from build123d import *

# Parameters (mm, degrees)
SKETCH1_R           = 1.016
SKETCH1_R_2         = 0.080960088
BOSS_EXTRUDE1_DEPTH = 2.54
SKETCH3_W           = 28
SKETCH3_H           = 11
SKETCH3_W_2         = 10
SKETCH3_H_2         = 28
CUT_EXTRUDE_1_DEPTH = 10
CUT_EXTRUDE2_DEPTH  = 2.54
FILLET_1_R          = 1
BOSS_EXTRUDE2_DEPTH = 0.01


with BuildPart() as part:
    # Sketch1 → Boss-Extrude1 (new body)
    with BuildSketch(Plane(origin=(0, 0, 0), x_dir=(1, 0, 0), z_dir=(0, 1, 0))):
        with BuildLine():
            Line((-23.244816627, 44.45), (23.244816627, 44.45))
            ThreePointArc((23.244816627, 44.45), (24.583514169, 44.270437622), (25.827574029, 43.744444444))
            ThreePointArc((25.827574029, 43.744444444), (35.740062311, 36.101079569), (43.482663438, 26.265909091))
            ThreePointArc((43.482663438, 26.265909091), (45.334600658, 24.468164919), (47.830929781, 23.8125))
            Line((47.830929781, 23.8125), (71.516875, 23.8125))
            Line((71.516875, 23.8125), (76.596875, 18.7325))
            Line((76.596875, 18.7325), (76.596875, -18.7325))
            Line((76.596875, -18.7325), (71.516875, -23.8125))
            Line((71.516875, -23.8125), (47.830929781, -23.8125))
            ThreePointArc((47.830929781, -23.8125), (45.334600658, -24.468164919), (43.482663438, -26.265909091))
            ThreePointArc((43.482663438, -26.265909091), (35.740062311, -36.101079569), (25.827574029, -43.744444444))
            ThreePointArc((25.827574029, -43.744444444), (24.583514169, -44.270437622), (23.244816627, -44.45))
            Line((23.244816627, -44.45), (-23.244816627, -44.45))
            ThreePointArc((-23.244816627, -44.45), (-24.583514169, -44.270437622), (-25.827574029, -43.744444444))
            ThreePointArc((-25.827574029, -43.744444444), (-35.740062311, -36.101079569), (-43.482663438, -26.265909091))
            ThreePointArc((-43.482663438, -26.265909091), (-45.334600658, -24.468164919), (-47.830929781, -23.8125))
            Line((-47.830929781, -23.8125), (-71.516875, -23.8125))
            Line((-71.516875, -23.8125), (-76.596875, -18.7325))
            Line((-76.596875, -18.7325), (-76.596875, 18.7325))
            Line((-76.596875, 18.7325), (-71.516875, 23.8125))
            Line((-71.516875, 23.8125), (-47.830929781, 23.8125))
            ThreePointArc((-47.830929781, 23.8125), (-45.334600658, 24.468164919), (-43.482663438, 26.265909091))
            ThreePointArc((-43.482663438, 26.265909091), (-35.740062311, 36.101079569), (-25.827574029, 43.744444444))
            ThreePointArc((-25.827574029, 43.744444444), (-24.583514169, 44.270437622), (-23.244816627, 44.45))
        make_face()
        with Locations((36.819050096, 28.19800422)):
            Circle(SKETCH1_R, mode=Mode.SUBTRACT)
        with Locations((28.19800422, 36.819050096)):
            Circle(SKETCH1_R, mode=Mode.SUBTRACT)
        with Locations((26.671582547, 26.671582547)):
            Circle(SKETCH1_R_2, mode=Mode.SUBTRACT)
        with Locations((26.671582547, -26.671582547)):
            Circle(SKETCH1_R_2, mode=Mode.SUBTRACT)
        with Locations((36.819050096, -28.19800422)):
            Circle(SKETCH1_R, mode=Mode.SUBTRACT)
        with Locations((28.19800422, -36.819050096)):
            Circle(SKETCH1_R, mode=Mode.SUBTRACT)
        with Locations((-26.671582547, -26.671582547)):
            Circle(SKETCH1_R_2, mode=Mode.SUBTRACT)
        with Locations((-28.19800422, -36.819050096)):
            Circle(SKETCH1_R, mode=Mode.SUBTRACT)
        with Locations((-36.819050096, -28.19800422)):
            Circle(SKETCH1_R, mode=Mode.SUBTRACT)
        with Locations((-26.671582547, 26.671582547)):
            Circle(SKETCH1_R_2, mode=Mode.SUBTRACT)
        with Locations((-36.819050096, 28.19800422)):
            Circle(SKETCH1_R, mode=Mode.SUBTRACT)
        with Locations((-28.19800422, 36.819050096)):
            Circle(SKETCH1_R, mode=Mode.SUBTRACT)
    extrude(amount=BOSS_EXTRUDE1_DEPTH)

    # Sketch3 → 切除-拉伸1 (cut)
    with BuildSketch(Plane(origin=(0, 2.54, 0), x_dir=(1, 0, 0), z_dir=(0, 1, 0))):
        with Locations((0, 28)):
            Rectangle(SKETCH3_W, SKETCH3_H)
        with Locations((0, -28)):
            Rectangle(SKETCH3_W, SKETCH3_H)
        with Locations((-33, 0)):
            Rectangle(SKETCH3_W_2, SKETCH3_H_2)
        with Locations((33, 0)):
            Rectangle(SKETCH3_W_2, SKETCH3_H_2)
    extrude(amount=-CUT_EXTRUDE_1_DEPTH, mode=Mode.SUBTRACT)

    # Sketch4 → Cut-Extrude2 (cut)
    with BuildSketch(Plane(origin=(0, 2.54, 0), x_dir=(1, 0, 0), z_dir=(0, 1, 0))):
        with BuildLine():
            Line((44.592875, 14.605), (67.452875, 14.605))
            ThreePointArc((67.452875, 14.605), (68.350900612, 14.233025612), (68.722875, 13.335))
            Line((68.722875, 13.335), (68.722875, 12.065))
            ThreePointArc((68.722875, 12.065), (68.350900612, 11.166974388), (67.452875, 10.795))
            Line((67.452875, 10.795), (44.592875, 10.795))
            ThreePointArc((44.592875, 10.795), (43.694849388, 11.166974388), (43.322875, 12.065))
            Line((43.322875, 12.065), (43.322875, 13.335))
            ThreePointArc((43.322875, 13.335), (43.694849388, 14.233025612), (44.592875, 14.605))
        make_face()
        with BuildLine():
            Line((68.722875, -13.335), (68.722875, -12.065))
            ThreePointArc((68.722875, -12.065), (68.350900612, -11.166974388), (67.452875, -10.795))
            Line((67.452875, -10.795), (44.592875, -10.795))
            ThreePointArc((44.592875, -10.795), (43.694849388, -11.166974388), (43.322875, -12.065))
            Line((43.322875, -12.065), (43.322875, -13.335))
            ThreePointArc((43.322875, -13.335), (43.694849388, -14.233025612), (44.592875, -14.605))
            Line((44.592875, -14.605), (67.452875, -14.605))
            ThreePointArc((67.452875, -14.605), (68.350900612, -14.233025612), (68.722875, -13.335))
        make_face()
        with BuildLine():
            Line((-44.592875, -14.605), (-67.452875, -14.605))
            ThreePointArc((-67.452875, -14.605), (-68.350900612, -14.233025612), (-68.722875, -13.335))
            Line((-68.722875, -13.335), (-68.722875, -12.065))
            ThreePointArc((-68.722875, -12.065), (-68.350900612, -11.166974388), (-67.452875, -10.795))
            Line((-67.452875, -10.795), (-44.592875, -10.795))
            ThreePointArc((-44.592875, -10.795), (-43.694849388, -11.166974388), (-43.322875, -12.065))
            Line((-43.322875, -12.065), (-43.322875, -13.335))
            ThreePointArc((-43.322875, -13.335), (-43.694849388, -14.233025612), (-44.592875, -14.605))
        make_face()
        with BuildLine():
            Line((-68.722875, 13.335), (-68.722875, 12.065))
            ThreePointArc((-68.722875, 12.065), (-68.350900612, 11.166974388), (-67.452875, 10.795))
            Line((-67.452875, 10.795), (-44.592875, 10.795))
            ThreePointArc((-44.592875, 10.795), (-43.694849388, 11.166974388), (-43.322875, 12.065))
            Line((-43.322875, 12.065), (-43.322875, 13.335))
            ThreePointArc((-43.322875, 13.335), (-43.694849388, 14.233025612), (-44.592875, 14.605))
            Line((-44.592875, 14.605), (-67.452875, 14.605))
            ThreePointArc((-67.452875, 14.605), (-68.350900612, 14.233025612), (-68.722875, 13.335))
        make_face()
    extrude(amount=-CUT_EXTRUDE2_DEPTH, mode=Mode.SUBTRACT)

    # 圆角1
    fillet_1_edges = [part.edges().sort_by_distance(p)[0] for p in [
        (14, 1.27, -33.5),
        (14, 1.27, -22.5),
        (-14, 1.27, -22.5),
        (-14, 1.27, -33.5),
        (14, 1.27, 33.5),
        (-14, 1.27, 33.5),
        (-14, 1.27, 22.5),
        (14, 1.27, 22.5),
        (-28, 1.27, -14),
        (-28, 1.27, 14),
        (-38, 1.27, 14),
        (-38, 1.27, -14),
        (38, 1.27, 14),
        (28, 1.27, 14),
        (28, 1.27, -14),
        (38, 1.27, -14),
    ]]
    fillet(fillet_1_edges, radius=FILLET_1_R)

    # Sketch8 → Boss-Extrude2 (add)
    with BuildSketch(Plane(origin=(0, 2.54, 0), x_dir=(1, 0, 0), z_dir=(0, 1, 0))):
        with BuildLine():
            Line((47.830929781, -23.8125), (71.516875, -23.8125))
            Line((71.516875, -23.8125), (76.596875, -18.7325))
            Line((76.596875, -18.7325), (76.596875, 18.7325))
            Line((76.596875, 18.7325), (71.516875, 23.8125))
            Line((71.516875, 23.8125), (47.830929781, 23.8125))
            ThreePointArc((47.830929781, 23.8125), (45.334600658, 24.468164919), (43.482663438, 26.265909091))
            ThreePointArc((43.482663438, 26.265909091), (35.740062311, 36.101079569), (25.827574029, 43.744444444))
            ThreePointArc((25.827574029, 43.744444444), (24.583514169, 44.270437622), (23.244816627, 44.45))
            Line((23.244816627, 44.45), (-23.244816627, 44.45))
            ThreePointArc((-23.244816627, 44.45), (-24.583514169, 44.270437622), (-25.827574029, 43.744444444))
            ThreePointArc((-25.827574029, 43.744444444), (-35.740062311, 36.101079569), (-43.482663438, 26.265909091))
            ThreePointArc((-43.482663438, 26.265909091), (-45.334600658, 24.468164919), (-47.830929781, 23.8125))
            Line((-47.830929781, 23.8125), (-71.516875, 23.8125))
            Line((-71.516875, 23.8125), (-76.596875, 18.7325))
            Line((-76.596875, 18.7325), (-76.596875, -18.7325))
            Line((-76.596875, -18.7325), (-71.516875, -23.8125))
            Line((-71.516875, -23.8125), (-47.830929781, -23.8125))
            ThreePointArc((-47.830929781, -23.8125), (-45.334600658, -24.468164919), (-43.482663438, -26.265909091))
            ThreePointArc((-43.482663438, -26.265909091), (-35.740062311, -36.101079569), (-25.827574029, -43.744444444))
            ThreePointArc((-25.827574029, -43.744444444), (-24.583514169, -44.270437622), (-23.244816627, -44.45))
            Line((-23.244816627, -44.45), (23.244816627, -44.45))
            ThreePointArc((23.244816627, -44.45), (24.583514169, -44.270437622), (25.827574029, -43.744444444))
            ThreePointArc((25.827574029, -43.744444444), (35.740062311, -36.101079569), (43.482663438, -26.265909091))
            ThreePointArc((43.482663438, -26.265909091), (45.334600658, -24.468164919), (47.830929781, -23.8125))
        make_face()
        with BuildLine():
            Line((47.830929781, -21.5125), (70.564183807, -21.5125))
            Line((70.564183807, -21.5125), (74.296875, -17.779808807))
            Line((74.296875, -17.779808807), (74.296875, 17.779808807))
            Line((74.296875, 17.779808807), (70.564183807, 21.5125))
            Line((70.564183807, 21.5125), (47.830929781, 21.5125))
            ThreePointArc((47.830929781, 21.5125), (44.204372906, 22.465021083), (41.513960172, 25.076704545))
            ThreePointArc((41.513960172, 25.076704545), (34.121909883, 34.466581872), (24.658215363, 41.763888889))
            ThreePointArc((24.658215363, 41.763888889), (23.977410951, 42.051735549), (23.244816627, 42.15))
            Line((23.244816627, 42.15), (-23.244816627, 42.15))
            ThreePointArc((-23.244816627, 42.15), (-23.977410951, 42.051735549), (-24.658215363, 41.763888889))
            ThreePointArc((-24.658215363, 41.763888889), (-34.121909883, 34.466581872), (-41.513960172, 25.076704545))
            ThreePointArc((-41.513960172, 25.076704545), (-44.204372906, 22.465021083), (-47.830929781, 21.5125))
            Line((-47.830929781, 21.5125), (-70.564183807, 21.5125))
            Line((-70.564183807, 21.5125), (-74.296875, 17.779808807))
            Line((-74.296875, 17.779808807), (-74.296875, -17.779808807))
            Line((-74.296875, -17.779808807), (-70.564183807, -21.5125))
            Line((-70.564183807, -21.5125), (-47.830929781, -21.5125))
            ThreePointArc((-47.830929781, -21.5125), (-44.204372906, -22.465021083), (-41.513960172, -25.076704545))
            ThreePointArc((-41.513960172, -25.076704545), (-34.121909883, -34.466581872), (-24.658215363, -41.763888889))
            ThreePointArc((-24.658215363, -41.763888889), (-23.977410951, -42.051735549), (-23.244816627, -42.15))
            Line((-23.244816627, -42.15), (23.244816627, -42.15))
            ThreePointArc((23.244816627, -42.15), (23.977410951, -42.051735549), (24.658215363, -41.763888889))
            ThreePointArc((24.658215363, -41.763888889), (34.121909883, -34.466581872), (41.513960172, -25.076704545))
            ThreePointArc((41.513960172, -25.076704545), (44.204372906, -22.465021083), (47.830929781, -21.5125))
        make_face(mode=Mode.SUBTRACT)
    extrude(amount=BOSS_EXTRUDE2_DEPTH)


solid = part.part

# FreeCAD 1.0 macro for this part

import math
import FreeCAD as App
import Part
import Sketcher
from FreeCAD import Vector
Q = App.Units.Quantity


def edges_at(feature, points):
    """Names of the edges that pass closest to the given points."""
    edges = feature.Shape.Edges
    near = lambda p: min(range(len(edges)), key=lambda i: edges[i].distToShape(Part.Vertex(*p))[0])
    return sorted({f"Edge{near(p) + 1}" for p in points})


def add_polygon(sketch, points):
    """Adds a closed chain of lines whose ends are joined by coincident constraints."""
    first, n = sketch.GeometryCount, len(points)
    for a, b in zip(points, points[1:] + points[:1]):
        sketch.addGeometry(Part.LineSegment(App.Vector(*a, 0), App.Vector(*b, 0)), False)
    for i in range(n):
        sketch.addConstraint(Sketcher.Constraint("Coincident", first + i, 2, first + (i + 1) % n, 1))

doc = App.newDocument("Part")
params = doc.addObject("Spreadsheet::Sheet", "Params")
for row, (alias, value) in enumerate([
    ("sketch1_radius", "2 in"),
    ("sketch1_radius2", "0.2 in"),
    ("sketch1_diameter", "0.08 in"),
    ("sketch1_height", "1.475 in"),
    ("pad1_length", "0.1 in"),
    ("pocket1_length", "10 mm"),
    ("sketch3_radius", "0.05 in"),
    ("sketch3_width", "0.9 in"),
    ("sketch3_height", "0.05 in"),
    ("pocket2_length", "0.1 in"),
    ("fillet_radius", "1 mm"),
    ("sketch4_radius", "2 in"),
    ("sketch4_radius2", "0.2 in"),
    ("sketch4_height", "1.475 in"),
    ("pad2_length", "0.01 mm"),
], start=1):
    params.set(f"A{row}", alias)
    params.set(f"B{row}", "=" + value)
    params.setAlias(f"B{row}", alias)

body = doc.addObject("PartDesign::Body", "Body")

sketch1 = body.newObject("Sketcher::SketchObject", "Sketch")
sketch1.AttachmentSupport = (doc.getObject("XZ_Plane"), [""])
sketch1.MapMode = "FlatFace"
sketch1.addGeometry(Part.LineSegment(Vector(23.244817, -44.45, 0), Vector(-23.244817, -44.45, 0)), False)
sketch1.addGeometry(Part.ArcOfCircle(Part.Circle(Vector(-23.244817, -39.37, 0), Vector(0, 0, 1), 5.08), math.radians(-120.558432), math.radians(-90)), False)
sketch1.addGeometry(Part.ArcOfCircle(Part.Circle(Vector(0, 0, 0), Vector(0, 0, 1), 50.8), math.radians(-148.865726), math.radians(-120.558432)), False)
sketch1.addGeometry(Part.ArcOfCircle(Part.Circle(Vector(-47.83093, -28.8925, 0), Vector(0, 0, 1), 5.08), math.radians(31.134274), math.radians(90)), False)
sketch1.addGeometry(Part.LineSegment(Vector(-47.83093, -23.8125, 0), Vector(-71.516875, -23.8125, 0)), False)
sketch1.addGeometry(Part.LineSegment(Vector(-71.516875, -23.8125, 0), Vector(-76.596875, -18.7325, 0)), False)
sketch1.addGeometry(Part.LineSegment(Vector(-76.596875, -18.7325, 0), Vector(-76.596875, 18.7325, 0)), False)
sketch1.addGeometry(Part.LineSegment(Vector(-76.596875, 18.7325, 0), Vector(-71.516875, 23.8125, 0)), False)
sketch1.addGeometry(Part.LineSegment(Vector(-71.516875, 23.8125, 0), Vector(-47.83093, 23.8125, 0)), False)
sketch1.addGeometry(Part.ArcOfCircle(Part.Circle(Vector(-47.83093, 28.8925, 0), Vector(0, 0, 1), 5.08), math.radians(-90), math.radians(-31.134274)), False)
sketch1.addGeometry(Part.ArcOfCircle(Part.Circle(Vector(0, 0, 0), Vector(0, 0, 1), 50.8), math.radians(120.558432), math.radians(148.865726)), False)
sketch1.addGeometry(Part.ArcOfCircle(Part.Circle(Vector(-23.244817, 39.37, 0), Vector(0, 0, 1), 5.08), math.radians(90), math.radians(120.558432)), False)
sketch1.addGeometry(Part.LineSegment(Vector(-23.244817, 44.45, 0), Vector(23.244817, 44.45, 0)), False)
sketch1.addGeometry(Part.ArcOfCircle(Part.Circle(Vector(23.244817, 39.37, 0), Vector(0, 0, 1), 5.08), math.radians(59.441568), math.radians(90)), False)
sketch1.addGeometry(Part.ArcOfCircle(Part.Circle(Vector(0, 0, 0), Vector(0, 0, 1), 50.8), math.radians(31.134274), math.radians(59.441568)), False)
sketch1.addGeometry(Part.ArcOfCircle(Part.Circle(Vector(47.83093, 28.8925, 0), Vector(0, 0, 1), 5.08), math.radians(-148.865726), math.radians(-90)), False)
sketch1.addGeometry(Part.LineSegment(Vector(47.83093, 23.8125, 0), Vector(71.516875, 23.8125, 0)), False)
sketch1.addGeometry(Part.LineSegment(Vector(71.516875, 23.8125, 0), Vector(76.596875, 18.7325, 0)), False)
sketch1.addGeometry(Part.LineSegment(Vector(76.596875, 18.7325, 0), Vector(76.596875, -18.7325, 0)), False)
sketch1.addGeometry(Part.LineSegment(Vector(76.596875, -18.7325, 0), Vector(71.516875, -23.8125, 0)), False)
sketch1.addGeometry(Part.LineSegment(Vector(71.516875, -23.8125, 0), Vector(47.83093, -23.8125, 0)), False)
sketch1.addGeometry(Part.ArcOfCircle(Part.Circle(Vector(47.83093, -28.8925, 0), Vector(0, 0, 1), 5.08), math.radians(90), math.radians(148.865726)), False)
sketch1.addGeometry(Part.ArcOfCircle(Part.Circle(Vector(0, 0, 0), Vector(0, 0, 1), 50.8), math.radians(-59.441568), math.radians(-31.134274)), False)
sketch1.addGeometry(Part.ArcOfCircle(Part.Circle(Vector(23.244817, -39.37, 0), Vector(0, 0, 1), 5.08), math.radians(-90), math.radians(-59.441568)), False)
sketch1.addGeometry(Part.Circle(Vector(28.198004, 36.81905, 0), Vector(0, 0, 1), 1.016), False)
sketch1.addGeometry(Part.Circle(Vector(36.81905, 28.198004, 0), Vector(0, 0, 1), 1.016), False)
sketch1.addGeometry(Part.Circle(Vector(26.671583, 26.671583, 0), Vector(0, 0, 1), 0.08096), False)
sketch1.addGeometry(Part.Circle(Vector(-28.198004, 36.81905, 0), Vector(0, 0, 1), 1.016), False)
sketch1.addGeometry(Part.Circle(Vector(-26.671583, 26.671583, 0), Vector(0, 0, 1), 0.08096), False)
sketch1.addGeometry(Part.Circle(Vector(-36.81905, 28.198004, 0), Vector(0, 0, 1), 1.016), False)
sketch1.addGeometry(Part.Circle(Vector(36.81905, -28.198004, 0), Vector(0, 0, 1), 1.016), False)
sketch1.addGeometry(Part.Circle(Vector(26.671583, -26.671583, 0), Vector(0, 0, 1), 0.08096), False)
sketch1.addGeometry(Part.Circle(Vector(28.198004, -36.81905, 0), Vector(0, 0, 1), 1.016), False)
sketch1.addGeometry(Part.Circle(Vector(-26.671583, -26.671583, 0), Vector(0, 0, 1), 0.08096), False)
sketch1.addGeometry(Part.Circle(Vector(-36.81905, -28.198004, 0), Vector(0, 0, 1), 1.016), False)
sketch1.addGeometry(Part.Circle(Vector(-28.198004, -36.81905, 0), Vector(0, 0, 1), 1.016), False)
sketch1.addConstraint(Sketcher.Constraint("Tangent", 0, 2, 1, 2))
sketch1.addConstraint(Sketcher.Constraint("Tangent", 1, 1, 2, 2))
sketch1.addConstraint(Sketcher.Constraint("Tangent", 2, 1, 3, 1))
sketch1.addConstraint(Sketcher.Constraint("Tangent", 3, 2, 4, 1))
sketch1.addConstraint(Sketcher.Constraint("Coincident", 4, 2, 5, 1))
sketch1.addConstraint(Sketcher.Constraint("Coincident", 5, 2, 6, 1))
sketch1.addConstraint(Sketcher.Constraint("Coincident", 6, 2, 7, 1))
sketch1.addConstraint(Sketcher.Constraint("Coincident", 7, 2, 8, 1))
sketch1.addConstraint(Sketcher.Constraint("Tangent", 8, 2, 9, 1))
sketch1.addConstraint(Sketcher.Constraint("Tangent", 9, 2, 10, 2))
sketch1.addConstraint(Sketcher.Constraint("Tangent", 10, 1, 11, 2))
sketch1.addConstraint(Sketcher.Constraint("Tangent", 11, 1, 12, 1))
sketch1.addConstraint(Sketcher.Constraint("Tangent", 12, 2, 13, 2))
sketch1.addConstraint(Sketcher.Constraint("Tangent", 13, 1, 14, 2))
sketch1.addConstraint(Sketcher.Constraint("Tangent", 14, 1, 15, 1))
sketch1.addConstraint(Sketcher.Constraint("Tangent", 15, 2, 16, 1))
sketch1.addConstraint(Sketcher.Constraint("Coincident", 16, 2, 17, 1))
sketch1.addConstraint(Sketcher.Constraint("Coincident", 17, 2, 18, 1))
sketch1.addConstraint(Sketcher.Constraint("Coincident", 18, 2, 19, 1))
sketch1.addConstraint(Sketcher.Constraint("Coincident", 19, 2, 20, 1))
sketch1.addConstraint(Sketcher.Constraint("Tangent", 20, 2, 21, 1))
sketch1.addConstraint(Sketcher.Constraint("Tangent", 21, 2, 22, 2))
sketch1.addConstraint(Sketcher.Constraint("Tangent", 22, 1, 23, 2))
sketch1.addConstraint(Sketcher.Constraint("Tangent", 23, 1, 0, 1))
sketch1.addConstraint(Sketcher.Constraint("Horizontal", 0))
sketch1.addConstraint(Sketcher.Constraint("Horizontal", 4))
sketch1.addConstraint(Sketcher.Constraint("Vertical", 6))
sketch1.addConstraint(Sketcher.Constraint("Horizontal", 8))
sketch1.addConstraint(Sketcher.Constraint("Horizontal", 12))
sketch1.addConstraint(Sketcher.Constraint("Horizontal", 16))
sketch1.addConstraint(Sketcher.Constraint("Vertical", 18))
sketch1.addConstraint(Sketcher.Constraint("Horizontal", 20))
sketch1.addConstraint(Sketcher.Constraint("Coincident", 2, 3, -1, 1))
sketch1.addConstraint(Sketcher.Constraint("Coincident", 10, 3, -1, 1))
sketch1.addConstraint(Sketcher.Constraint("Coincident", 14, 3, -1, 1))
sketch1.addConstraint(Sketcher.Constraint("Coincident", 22, 3, -1, 1))
sketch1.addConstraint(Sketcher.Constraint("Equal", 1, 3))
sketch1.addConstraint(Sketcher.Constraint("Equal", 3, 9))
sketch1.addConstraint(Sketcher.Constraint("Equal", 2, 10))
sketch1.addConstraint(Sketcher.Constraint("Equal", 9, 11))
sketch1.addConstraint(Sketcher.Constraint("Equal", 11, 13))
sketch1.addConstraint(Sketcher.Constraint("Equal", 10, 14))
sketch1.addConstraint(Sketcher.Constraint("Equal", 13, 15))
sketch1.addConstraint(Sketcher.Constraint("Equal", 15, 21))
sketch1.addConstraint(Sketcher.Constraint("Equal", 14, 22))
sketch1.addConstraint(Sketcher.Constraint("Equal", 21, 23))
sketch1.addConstraint(Sketcher.Constraint("Equal", 24, 25))
sketch1.addConstraint(Sketcher.Constraint("Equal", 25, 27))
sketch1.addConstraint(Sketcher.Constraint("Equal", 26, 28))
sketch1.addConstraint(Sketcher.Constraint("Equal", 27, 29))
sketch1.addConstraint(Sketcher.Constraint("Equal", 29, 30))
sketch1.addConstraint(Sketcher.Constraint("Equal", 28, 31))
sketch1.addConstraint(Sketcher.Constraint("Equal", 30, 32))
sketch1.addConstraint(Sketcher.Constraint("Equal", 31, 33))
sketch1.addConstraint(Sketcher.Constraint("Equal", 32, 34))
sketch1.addConstraint(Sketcher.Constraint("Equal", 34, 35))
sketch1.addConstraint(Sketcher.Constraint("Symmetric", 29, 3, 30, 3, -1, 1))
sketch1.addConstraint(Sketcher.Constraint("Symmetric", 28, 3, 31, 3, -1, 1))
sketch1.addConstraint(Sketcher.Constraint("Symmetric", 27, 3, 32, 3, -1, 1))
sketch1.addConstraint(Sketcher.Constraint("Symmetric", 26, 3, 33, 3, -1, 1))
sketch1.addConstraint(Sketcher.Constraint("Symmetric", 25, 3, 34, 3, -1, 1))
sketch1.addConstraint(Sketcher.Constraint("Symmetric", 24, 3, 35, 3, -1, 1))
sketch1.addConstraint(Sketcher.Constraint("Symmetric", 4, 2, 16, 2, -1, 1))
sketch1.addConstraint(Sketcher.Constraint("Symmetric", 5, 2, 17, 2, -1, 1))
sketch1.addConstraint(Sketcher.Constraint("Symmetric", 7, 2, 19, 2, -1, 1))
sketch1.addConstraint(Sketcher.Constraint("Symmetric", 24, 3, 27, 3, -2))
sketch1.addConstraint(Sketcher.Constraint("Symmetric", 26, 3, 28, 3, -2))
sketch1.addConstraint(Sketcher.Constraint("Symmetric", 25, 3, 29, 3, -2))
sketch1.addConstraint(Sketcher.Constraint("Symmetric", 7, 2, 16, 2, -2))
sketch1.addConstraint(Sketcher.Constraint("Perpendicular", 5, 7))
sketch1.addConstraint(Sketcher.Constraint("Perpendicular", 17, 19))
sketch1.addConstraint(Sketcher.Constraint("Horizontal", 6, 2, 17, 2))
sketch1.addConstraint(Sketcher.Constraint("Vertical", 1, 3, 11, 3))
sketch1.addConstraint(Sketcher.Constraint("Radius", 2, Q("2 in")))
sketch1.addConstraint(Sketcher.Constraint("Radius", 1, Q("0.2 in")))
sketch1.addConstraint(Sketcher.Constraint("Diameter", 24, Q("0.08 in")))
sketch1.addConstraint(Sketcher.Constraint("DistanceY", 1, 3, 11, 3, Q("3.1 in")))
sketch1.addConstraint(Sketcher.Constraint("DistanceX", 5, 2, 4, 2, Q("0.2 in")))
sketch1.addConstraint(Sketcher.Constraint("DistanceY", 6, 1, 6, 2, Q("1.475 in")))
sketch1.addConstraint(Sketcher.Constraint("Diameter", 26, 0.16192))
sketch1.addConstraint(Sketcher.Constraint("DistanceX", 5, 2, -1, 1, Q("3.015625 in")))
sketch1.addConstraint(Sketcher.Constraint("DistanceY", -1, 1, 24, 3, 36.81905))
sketch1.addConstraint(Sketcher.Constraint("DistanceX", -1, 1, 25, 3, 36.81905))
sketch1.addConstraint(Sketcher.Constraint("DistanceX", 26, 3, 24, 3, 1.526422))
sketch1.addConstraint(Sketcher.Constraint("DistanceY", 26, 3, 25, 3, 1.526422))
sketch1.addConstraint(Sketcher.Constraint("DistanceX", 35, 3, 1, 1, 2.37043))
sketch1.addConstraint(Sketcher.Constraint("DistanceY", 1, 1, 33, 3, 17.072862))
sketch1.setExpression("Constraints[73]", "Params.sketch1_radius")
sketch1.setExpression("Constraints[74]", "Params.sketch1_radius2")
sketch1.setExpression("Constraints[75]", "Params.sketch1_diameter")
sketch1.setExpression("Constraints[78]", "Params.sketch1_height")
pad1 = body.newObject("PartDesign::Pad", "Pad")
pad1.Profile = sketch1
pad1.setExpression("Length", "Params.pad1_length")
pad1.Reversed = True

sketch2 = body.newObject("Sketcher::SketchObject", "Sketch001")
sketch2.AttachmentSupport = (doc.getObject("XZ_Plane"), [""])
sketch2.MapMode = "FlatFace"
sketch2.AttachmentOffset = App.Placement(Vector(0, 0, -0.1 * 25.4), App.Rotation())
add_polygon(sketch2, [(-14, -33.5), (-14, -22.5), (14, -22.5), (14, -33.5)])
add_polygon(sketch2, [(-14, 22.5), (-14, 33.5), (14, 33.5), (14, 22.5)])
add_polygon(sketch2, [(-38, -14), (-38, 14), (-28, 14), (-28, -14)])
add_polygon(sketch2, [(28, -14), (28, 14), (38, 14), (38, -14)])
sketch2.addConstraint(Sketcher.Constraint("Vertical", 0))
sketch2.addConstraint(Sketcher.Constraint("Horizontal", 1))
sketch2.addConstraint(Sketcher.Constraint("Vertical", 2))
sketch2.addConstraint(Sketcher.Constraint("Horizontal", 3))
sketch2.addConstraint(Sketcher.Constraint("Vertical", 4))
sketch2.addConstraint(Sketcher.Constraint("Horizontal", 5))
sketch2.addConstraint(Sketcher.Constraint("Vertical", 6))
sketch2.addConstraint(Sketcher.Constraint("Horizontal", 7))
sketch2.addConstraint(Sketcher.Constraint("Vertical", 8))
sketch2.addConstraint(Sketcher.Constraint("Horizontal", 9))
sketch2.addConstraint(Sketcher.Constraint("Vertical", 10))
sketch2.addConstraint(Sketcher.Constraint("Horizontal", 11))
sketch2.addConstraint(Sketcher.Constraint("Vertical", 12))
sketch2.addConstraint(Sketcher.Constraint("Horizontal", 13))
sketch2.addConstraint(Sketcher.Constraint("Vertical", 14))
sketch2.addConstraint(Sketcher.Constraint("Horizontal", 15))
sketch2.addConstraint(Sketcher.Constraint("Symmetric", 2, 2, 4, 2, -1, 1))
sketch2.addConstraint(Sketcher.Constraint("Symmetric", 0, 2, 6, 2, -1, 1))
sketch2.addConstraint(Sketcher.Constraint("Symmetric", 10, 2, 12, 2, -1, 1))
sketch2.addConstraint(Sketcher.Constraint("Symmetric", 8, 2, 14, 2, -1, 1))
sketch2.addConstraint(Sketcher.Constraint("Horizontal", 9, 2, 12, 2))
sketch2.addConstraint(Sketcher.Constraint("Vertical", 3, 2, 4, 2))
sketch2.addConstraint(Sketcher.Constraint("Equal", 7, 8))
sketch2.addConstraint(Sketcher.Constraint("DistanceX", 1, 1, 1, 2, 28.0))
sketch2.addConstraint(Sketcher.Constraint("DistanceX", 9, 1, 9, 2, 10.0))
sketch2.addConstraint(Sketcher.Constraint("DistanceY", 0, 1, 0, 2, 11.0))
sketch2.addConstraint(Sketcher.Constraint("DistanceY", 0, 2, -1, 1, 22.5))
sketch2.addConstraint(Sketcher.Constraint("DistanceX", 8, 2, -1, 1, 38.0))
pocket1 = body.newObject("PartDesign::Pocket", "Pocket")
pocket1.Profile = sketch2
pocket1.setExpression("Length", "Params.pocket1_length")
pocket1.Reversed = True

sketch3 = body.newObject("Sketcher::SketchObject", "Sketch002")
sketch3.AttachmentSupport = (doc.getObject("XZ_Plane"), [""])
sketch3.MapMode = "FlatFace"
sketch3.AttachmentOffset = App.Placement(Vector(0, 0, -0.1 * 25.4), App.Rotation())
sketch3.addGeometry(Part.LineSegment(Vector(67.452875, -14.605, 0), Vector(44.592875, -14.605, 0)), False)
sketch3.addGeometry(Part.ArcOfCircle(Part.Circle(Vector(44.592875, -13.335, 0), Vector(0, 0, 1), 1.27), math.radians(180), math.radians(270)), False)
sketch3.addGeometry(Part.LineSegment(Vector(43.322875, -13.335, 0), Vector(43.322875, -12.065, 0)), False)
sketch3.addGeometry(Part.ArcOfCircle(Part.Circle(Vector(44.592875, -12.065, 0), Vector(0, 0, 1), 1.27), math.radians(90), math.radians(180)), False)
sketch3.addGeometry(Part.LineSegment(Vector(44.592875, -10.795, 0), Vector(67.452875, -10.795, 0)), False)
sketch3.addGeometry(Part.ArcOfCircle(Part.Circle(Vector(67.452875, -12.065, 0), Vector(0, 0, 1), 1.27), math.radians(0), math.radians(90)), False)
sketch3.addGeometry(Part.LineSegment(Vector(68.722875, -12.065, 0), Vector(68.722875, -13.335, 0)), False)
sketch3.addGeometry(Part.ArcOfCircle(Part.Circle(Vector(67.452875, -13.335, 0), Vector(0, 0, 1), 1.27), math.radians(-90), math.radians(0)), False)
sketch3.addGeometry(Part.LineSegment(Vector(68.722875, 13.335, 0), Vector(68.722875, 12.065, 0)), False)
sketch3.addGeometry(Part.ArcOfCircle(Part.Circle(Vector(67.452875, 12.065, 0), Vector(0, 0, 1), 1.27), math.radians(-90), math.radians(0)), False)
sketch3.addGeometry(Part.LineSegment(Vector(67.452875, 10.795, 0), Vector(44.592875, 10.795, 0)), False)
sketch3.addGeometry(Part.ArcOfCircle(Part.Circle(Vector(44.592875, 12.065, 0), Vector(0, 0, 1), 1.27), math.radians(180), math.radians(270)), False)
sketch3.addGeometry(Part.LineSegment(Vector(43.322875, 12.065, 0), Vector(43.322875, 13.335, 0)), False)
sketch3.addGeometry(Part.ArcOfCircle(Part.Circle(Vector(44.592875, 13.335, 0), Vector(0, 0, 1), 1.27), math.radians(90), math.radians(180)), False)
sketch3.addGeometry(Part.LineSegment(Vector(44.592875, 14.605, 0), Vector(67.452875, 14.605, 0)), False)
sketch3.addGeometry(Part.ArcOfCircle(Part.Circle(Vector(67.452875, 13.335, 0), Vector(0, 0, 1), 1.27), math.radians(0), math.radians(90)), False)
sketch3.addGeometry(Part.LineSegment(Vector(-67.452875, 14.605, 0), Vector(-44.592875, 14.605, 0)), False)
sketch3.addGeometry(Part.ArcOfCircle(Part.Circle(Vector(-44.592875, 13.335, 0), Vector(0, 0, 1), 1.27), math.radians(0), math.radians(90)), False)
sketch3.addGeometry(Part.LineSegment(Vector(-43.322875, 13.335, 0), Vector(-43.322875, 12.065, 0)), False)
sketch3.addGeometry(Part.ArcOfCircle(Part.Circle(Vector(-44.592875, 12.065, 0), Vector(0, 0, 1), 1.27), math.radians(-90), math.radians(0)), False)
sketch3.addGeometry(Part.LineSegment(Vector(-44.592875, 10.795, 0), Vector(-67.452875, 10.795, 0)), False)
sketch3.addGeometry(Part.ArcOfCircle(Part.Circle(Vector(-67.452875, 12.065, 0), Vector(0, 0, 1), 1.27), math.radians(180), math.radians(270)), False)
sketch3.addGeometry(Part.LineSegment(Vector(-68.722875, 12.065, 0), Vector(-68.722875, 13.335, 0)), False)
sketch3.addGeometry(Part.ArcOfCircle(Part.Circle(Vector(-67.452875, 13.335, 0), Vector(0, 0, 1), 1.27), math.radians(90), math.radians(180)), False)
sketch3.addGeometry(Part.LineSegment(Vector(-68.722875, -13.335, 0), Vector(-68.722875, -12.065, 0)), False)
sketch3.addGeometry(Part.ArcOfCircle(Part.Circle(Vector(-67.452875, -12.065, 0), Vector(0, 0, 1), 1.27), math.radians(90), math.radians(180)), False)
sketch3.addGeometry(Part.LineSegment(Vector(-67.452875, -10.795, 0), Vector(-44.592875, -10.795, 0)), False)
sketch3.addGeometry(Part.ArcOfCircle(Part.Circle(Vector(-44.592875, -12.065, 0), Vector(0, 0, 1), 1.27), math.radians(0), math.radians(90)), False)
sketch3.addGeometry(Part.LineSegment(Vector(-43.322875, -12.065, 0), Vector(-43.322875, -13.335, 0)), False)
sketch3.addGeometry(Part.ArcOfCircle(Part.Circle(Vector(-44.592875, -13.335, 0), Vector(0, 0, 1), 1.27), math.radians(-90), math.radians(0)), False)
sketch3.addGeometry(Part.LineSegment(Vector(-44.592875, -14.605, 0), Vector(-67.452875, -14.605, 0)), False)
sketch3.addGeometry(Part.ArcOfCircle(Part.Circle(Vector(-67.452875, -13.335, 0), Vector(0, 0, 1), 1.27), math.radians(180), math.radians(270)), False)
sketch3.addConstraint(Sketcher.Constraint("Tangent", 0, 2, 1, 2))
sketch3.addConstraint(Sketcher.Constraint("Tangent", 1, 1, 2, 1))
sketch3.addConstraint(Sketcher.Constraint("Tangent", 2, 2, 3, 2))
sketch3.addConstraint(Sketcher.Constraint("Tangent", 3, 1, 4, 1))
sketch3.addConstraint(Sketcher.Constraint("Tangent", 4, 2, 5, 2))
sketch3.addConstraint(Sketcher.Constraint("Tangent", 5, 1, 6, 1))
sketch3.addConstraint(Sketcher.Constraint("Tangent", 6, 2, 7, 2))
sketch3.addConstraint(Sketcher.Constraint("Tangent", 7, 1, 0, 1))
sketch3.addConstraint(Sketcher.Constraint("Tangent", 8, 2, 9, 2))
sketch3.addConstraint(Sketcher.Constraint("Tangent", 9, 1, 10, 1))
sketch3.addConstraint(Sketcher.Constraint("Tangent", 10, 2, 11, 2))
sketch3.addConstraint(Sketcher.Constraint("Tangent", 11, 1, 12, 1))
sketch3.addConstraint(Sketcher.Constraint("Tangent", 12, 2, 13, 2))
sketch3.addConstraint(Sketcher.Constraint("Tangent", 13, 1, 14, 1))
sketch3.addConstraint(Sketcher.Constraint("Tangent", 14, 2, 15, 2))
sketch3.addConstraint(Sketcher.Constraint("Tangent", 15, 1, 8, 1))
sketch3.addConstraint(Sketcher.Constraint("Tangent", 16, 2, 17, 2))
sketch3.addConstraint(Sketcher.Constraint("Tangent", 17, 1, 18, 1))
sketch3.addConstraint(Sketcher.Constraint("Tangent", 18, 2, 19, 2))
sketch3.addConstraint(Sketcher.Constraint("Tangent", 19, 1, 20, 1))
sketch3.addConstraint(Sketcher.Constraint("Tangent", 20, 2, 21, 2))
sketch3.addConstraint(Sketcher.Constraint("Tangent", 21, 1, 22, 1))
sketch3.addConstraint(Sketcher.Constraint("Tangent", 22, 2, 23, 2))
sketch3.addConstraint(Sketcher.Constraint("Tangent", 23, 1, 16, 1))
sketch3.addConstraint(Sketcher.Constraint("Tangent", 24, 2, 25, 2))
sketch3.addConstraint(Sketcher.Constraint("Tangent", 25, 1, 26, 1))
sketch3.addConstraint(Sketcher.Constraint("Tangent", 26, 2, 27, 2))
sketch3.addConstraint(Sketcher.Constraint("Tangent", 27, 1, 28, 1))
sketch3.addConstraint(Sketcher.Constraint("Tangent", 28, 2, 29, 2))
sketch3.addConstraint(Sketcher.Constraint("Tangent", 29, 1, 30, 1))
sketch3.addConstraint(Sketcher.Constraint("Tangent", 30, 2, 31, 2))
sketch3.addConstraint(Sketcher.Constraint("Tangent", 31, 1, 24, 1))
sketch3.addConstraint(Sketcher.Constraint("Horizontal", 0))
sketch3.addConstraint(Sketcher.Constraint("Vertical", 2))
sketch3.addConstraint(Sketcher.Constraint("Horizontal", 4))
sketch3.addConstraint(Sketcher.Constraint("Vertical", 6))
sketch3.addConstraint(Sketcher.Constraint("Vertical", 8))
sketch3.addConstraint(Sketcher.Constraint("Horizontal", 10))
sketch3.addConstraint(Sketcher.Constraint("Vertical", 12))
sketch3.addConstraint(Sketcher.Constraint("Horizontal", 14))
sketch3.addConstraint(Sketcher.Constraint("Horizontal", 16))
sketch3.addConstraint(Sketcher.Constraint("Vertical", 18))
sketch3.addConstraint(Sketcher.Constraint("Horizontal", 20))
sketch3.addConstraint(Sketcher.Constraint("Vertical", 22))
sketch3.addConstraint(Sketcher.Constraint("Vertical", 24))
sketch3.addConstraint(Sketcher.Constraint("Horizontal", 26))
sketch3.addConstraint(Sketcher.Constraint("Vertical", 28))
sketch3.addConstraint(Sketcher.Constraint("Horizontal", 30))
sketch3.addConstraint(Sketcher.Constraint("Equal", 1, 3))
sketch3.addConstraint(Sketcher.Constraint("Equal", 3, 5))
sketch3.addConstraint(Sketcher.Constraint("Equal", 5, 7))
sketch3.addConstraint(Sketcher.Constraint("Equal", 7, 9))
sketch3.addConstraint(Sketcher.Constraint("Equal", 9, 11))
sketch3.addConstraint(Sketcher.Constraint("Equal", 11, 13))
sketch3.addConstraint(Sketcher.Constraint("Equal", 13, 15))
sketch3.addConstraint(Sketcher.Constraint("Equal", 15, 17))
sketch3.addConstraint(Sketcher.Constraint("Equal", 17, 19))
sketch3.addConstraint(Sketcher.Constraint("Equal", 19, 21))
sketch3.addConstraint(Sketcher.Constraint("Equal", 21, 23))
sketch3.addConstraint(Sketcher.Constraint("Equal", 23, 25))
sketch3.addConstraint(Sketcher.Constraint("Equal", 25, 27))
sketch3.addConstraint(Sketcher.Constraint("Equal", 27, 29))
sketch3.addConstraint(Sketcher.Constraint("Equal", 29, 31))
sketch3.addConstraint(Sketcher.Constraint("Symmetric", 1, 3, 17, 3, -1, 1))
sketch3.addConstraint(Sketcher.Constraint("Symmetric", 5, 3, 21, 3, -1, 1))
sketch3.addConstraint(Sketcher.Constraint("Symmetric", 9, 3, 25, 3, -1, 1))
sketch3.addConstraint(Sketcher.Constraint("Symmetric", 13, 3, 29, 3, -1, 1))
sketch3.addConstraint(Sketcher.Constraint("Symmetric", 13, 3, 17, 3, -2))
sketch3.addConstraint(Sketcher.Constraint("Symmetric", 9, 3, 21, 3, -2))
sketch3.addConstraint(Sketcher.Constraint("Radius", 1, Q("0.05 in")))
sketch3.addConstraint(Sketcher.Constraint("DistanceX", 0, 2, 0, 1, Q("0.9 in")))
sketch3.addConstraint(Sketcher.Constraint("DistanceY", 7, 3, 9, 3, Q("1 in")))
sketch3.addConstraint(Sketcher.Constraint("DistanceY", 2, 1, 2, 2, Q("0.05 in")))
sketch3.addConstraint(Sketcher.Constraint("DistanceX", 17, 3, 13, 3, 89.18575))
sketch3.setExpression("Constraints[69]", "Params.sketch3_radius")
sketch3.setExpression("Constraints[70]", "Params.sketch3_width")
sketch3.setExpression("Constraints[72]", "Params.sketch3_height")
pocket2 = body.newObject("PartDesign::Pocket", "Pocket001")
pocket2.Profile = sketch3
pocket2.setExpression("Length", "Params.pocket2_length")
pocket2.Reversed = True
doc.recompute()

fillet = body.newObject("PartDesign::Fillet", "Fillet")
fillet.Base = (pocket2, edges_at(pocket2, [
    (14, 1.27, -33.5),
    (14, 1.27, -22.5),
    (-14, 1.27, -22.5),
    (-14, 1.27, -33.5),
    (14, 1.27, 33.5),
    (-14, 1.27, 33.5),
    (-14, 1.27, 22.5),
    (14, 1.27, 22.5),
    (-28, 1.27, -14),
    (-28, 1.27, 14),
    (-38, 1.27, 14),
    (-38, 1.27, -14),
    (38, 1.27, 14),
    (28, 1.27, 14),
    (28, 1.27, -14),
    (38, 1.27, -14),
]))
fillet.setExpression("Radius", "Params.fillet_radius")

sketch4 = body.newObject("Sketcher::SketchObject", "Sketch003")
sketch4.AttachmentSupport = (doc.getObject("XZ_Plane"), [""])
sketch4.MapMode = "FlatFace"
sketch4.AttachmentOffset = App.Placement(Vector(0, 0, -0.1 * 25.4), App.Rotation())
sketch4.addGeometry(Part.LineSegment(Vector(47.83093, 23.8125, 0), Vector(71.516875, 23.8125, 0)), False)
sketch4.addGeometry(Part.LineSegment(Vector(71.516875, 23.8125, 0), Vector(76.596875, 18.7325, 0)), False)
sketch4.addGeometry(Part.LineSegment(Vector(76.596875, 18.7325, 0), Vector(76.596875, -18.7325, 0)), False)
sketch4.addGeometry(Part.LineSegment(Vector(76.596875, -18.7325, 0), Vector(71.516875, -23.8125, 0)), False)
sketch4.addGeometry(Part.LineSegment(Vector(71.516875, -23.8125, 0), Vector(47.83093, -23.8125, 0)), False)
sketch4.addGeometry(Part.ArcOfCircle(Part.Circle(Vector(47.83093, -28.8925, 0), Vector(0, 0, 1), 5.08), math.radians(90), math.radians(148.865726)), False)
sketch4.addGeometry(Part.ArcOfCircle(Part.Circle(Vector(0, 0, 0), Vector(0, 0, 1), 50.8), math.radians(-59.441568), math.radians(-31.134274)), False)
sketch4.addGeometry(Part.ArcOfCircle(Part.Circle(Vector(23.244817, -39.37, 0), Vector(0, 0, 1), 5.08), math.radians(-90), math.radians(-59.441568)), False)
sketch4.addGeometry(Part.LineSegment(Vector(23.244817, -44.45, 0), Vector(-23.244817, -44.45, 0)), False)
sketch4.addGeometry(Part.ArcOfCircle(Part.Circle(Vector(-23.244817, -39.37, 0), Vector(0, 0, 1), 5.08), math.radians(-120.558432), math.radians(-90)), False)
sketch4.addGeometry(Part.ArcOfCircle(Part.Circle(Vector(0, 0, 0), Vector(0, 0, 1), 50.8), math.radians(-148.865726), math.radians(-120.558432)), False)
sketch4.addGeometry(Part.ArcOfCircle(Part.Circle(Vector(-47.83093, -28.8925, 0), Vector(0, 0, 1), 5.08), math.radians(31.134274), math.radians(90)), False)
sketch4.addGeometry(Part.LineSegment(Vector(-47.83093, -23.8125, 0), Vector(-71.516875, -23.8125, 0)), False)
sketch4.addGeometry(Part.LineSegment(Vector(-71.516875, -23.8125, 0), Vector(-76.596875, -18.7325, 0)), False)
sketch4.addGeometry(Part.LineSegment(Vector(-76.596875, -18.7325, 0), Vector(-76.596875, 18.7325, 0)), False)
sketch4.addGeometry(Part.LineSegment(Vector(-76.596875, 18.7325, 0), Vector(-71.516875, 23.8125, 0)), False)
sketch4.addGeometry(Part.LineSegment(Vector(-71.516875, 23.8125, 0), Vector(-47.83093, 23.8125, 0)), False)
sketch4.addGeometry(Part.ArcOfCircle(Part.Circle(Vector(-47.83093, 28.8925, 0), Vector(0, 0, 1), 5.08), math.radians(-90), math.radians(-31.134274)), False)
sketch4.addGeometry(Part.ArcOfCircle(Part.Circle(Vector(0, 0, 0), Vector(0, 0, 1), 50.8), math.radians(120.558432), math.radians(148.865726)), False)
sketch4.addGeometry(Part.ArcOfCircle(Part.Circle(Vector(-23.244817, 39.37, 0), Vector(0, 0, 1), 5.08), math.radians(90), math.radians(120.558432)), False)
sketch4.addGeometry(Part.LineSegment(Vector(-23.244817, 44.45, 0), Vector(23.244817, 44.45, 0)), False)
sketch4.addGeometry(Part.ArcOfCircle(Part.Circle(Vector(23.244817, 39.37, 0), Vector(0, 0, 1), 5.08), math.radians(59.441568), math.radians(90)), False)
sketch4.addGeometry(Part.ArcOfCircle(Part.Circle(Vector(0, 0, 0), Vector(0, 0, 1), 50.8), math.radians(31.134274), math.radians(59.441568)), False)
sketch4.addGeometry(Part.ArcOfCircle(Part.Circle(Vector(47.83093, 28.8925, 0), Vector(0, 0, 1), 5.08), math.radians(-148.865726), math.radians(-90)), False)
sketch4.addGeometry(Part.LineSegment(Vector(70.564184, 21.5125, 0), Vector(47.83093, 21.5125, 0)), False)
sketch4.addGeometry(Part.ArcOfCircle(Part.Circle(Vector(47.83093, 28.8925, 0), Vector(0, 0, 1), 7.38), math.radians(-148.865726), math.radians(-90)), False)
sketch4.addGeometry(Part.ArcOfCircle(Part.Circle(Vector(0, 0, 0), Vector(0, 0, 1), 48.5), math.radians(31.134274), math.radians(59.441568)), False)
sketch4.addGeometry(Part.ArcOfCircle(Part.Circle(Vector(23.244817, 39.37, 0), Vector(0, 0, 1), 2.78), math.radians(59.441568), math.radians(90)), False)
sketch4.addGeometry(Part.LineSegment(Vector(23.244817, 42.15, 0), Vector(-23.244817, 42.15, 0)), False)
sketch4.addGeometry(Part.ArcOfCircle(Part.Circle(Vector(-23.244817, 39.37, 0), Vector(0, 0, 1), 2.78), math.radians(90), math.radians(120.558432)), False)
sketch4.addGeometry(Part.ArcOfCircle(Part.Circle(Vector(0, 0, 0), Vector(0, 0, 1), 48.5), math.radians(120.558432), math.radians(148.865726)), False)
sketch4.addGeometry(Part.ArcOfCircle(Part.Circle(Vector(-47.83093, 28.8925, 0), Vector(0, 0, 1), 7.38), math.radians(-90), math.radians(-31.134274)), False)
sketch4.addGeometry(Part.LineSegment(Vector(-47.83093, 21.5125, 0), Vector(-70.564184, 21.5125, 0)), False)
sketch4.addGeometry(Part.LineSegment(Vector(-70.564184, 21.5125, 0), Vector(-74.296875, 17.779809, 0)), False)
sketch4.addGeometry(Part.LineSegment(Vector(-74.296875, 17.779809, 0), Vector(-74.296875, -17.779809, 0)), False)
sketch4.addGeometry(Part.LineSegment(Vector(-74.296875, -17.779809, 0), Vector(-70.564184, -21.5125, 0)), False)
sketch4.addGeometry(Part.LineSegment(Vector(-70.564184, -21.5125, 0), Vector(-47.83093, -21.5125, 0)), False)
sketch4.addGeometry(Part.ArcOfCircle(Part.Circle(Vector(-47.83093, -28.8925, 0), Vector(0, 0, 1), 7.38), math.radians(31.134274), math.radians(90)), False)
sketch4.addGeometry(Part.ArcOfCircle(Part.Circle(Vector(0, 0, 0), Vector(0, 0, 1), 48.5), math.radians(-148.865726), math.radians(-120.558432)), False)
sketch4.addGeometry(Part.ArcOfCircle(Part.Circle(Vector(-23.244817, -39.37, 0), Vector(0, 0, 1), 2.78), math.radians(-120.558432), math.radians(-90)), False)
sketch4.addGeometry(Part.LineSegment(Vector(-23.244817, -42.15, 0), Vector(23.244817, -42.15, 0)), False)
sketch4.addGeometry(Part.ArcOfCircle(Part.Circle(Vector(23.244817, -39.37, 0), Vector(0, 0, 1), 2.78), math.radians(-90), math.radians(-59.441568)), False)
sketch4.addGeometry(Part.ArcOfCircle(Part.Circle(Vector(0, 0, 0), Vector(0, 0, 1), 48.5), math.radians(-59.441568), math.radians(-31.134274)), False)
sketch4.addGeometry(Part.ArcOfCircle(Part.Circle(Vector(47.83093, -28.8925, 0), Vector(0, 0, 1), 7.38), math.radians(90), math.radians(148.865726)), False)
sketch4.addGeometry(Part.LineSegment(Vector(47.83093, -21.5125, 0), Vector(70.564184, -21.5125, 0)), False)
sketch4.addGeometry(Part.LineSegment(Vector(70.564184, -21.5125, 0), Vector(74.296875, -17.779809, 0)), False)
sketch4.addGeometry(Part.LineSegment(Vector(74.296875, -17.779809, 0), Vector(74.296875, 17.779809, 0)), False)
sketch4.addGeometry(Part.LineSegment(Vector(74.296875, 17.779809, 0), Vector(70.564184, 21.5125, 0)), False)
sketch4.addConstraint(Sketcher.Constraint("Coincident", 0, 2, 1, 1))
sketch4.addConstraint(Sketcher.Constraint("Coincident", 1, 2, 2, 1))
sketch4.addConstraint(Sketcher.Constraint("Coincident", 2, 2, 3, 1))
sketch4.addConstraint(Sketcher.Constraint("Coincident", 3, 2, 4, 1))
sketch4.addConstraint(Sketcher.Constraint("Tangent", 4, 2, 5, 1))
sketch4.addConstraint(Sketcher.Constraint("Tangent", 5, 2, 6, 2))
sketch4.addConstraint(Sketcher.Constraint("Tangent", 6, 1, 7, 2))
sketch4.addConstraint(Sketcher.Constraint("Tangent", 7, 1, 8, 1))
sketch4.addConstraint(Sketcher.Constraint("Tangent", 8, 2, 9, 2))
sketch4.addConstraint(Sketcher.Constraint("Tangent", 9, 1, 10, 2))
sketch4.addConstraint(Sketcher.Constraint("Tangent", 10, 1, 11, 1))
sketch4.addConstraint(Sketcher.Constraint("Tangent", 11, 2, 12, 1))
sketch4.addConstraint(Sketcher.Constraint("Coincident", 12, 2, 13, 1))
sketch4.addConstraint(Sketcher.Constraint("Coincident", 13, 2, 14, 1))
sketch4.addConstraint(Sketcher.Constraint("Coincident", 14, 2, 15, 1))
sketch4.addConstraint(Sketcher.Constraint("Coincident", 15, 2, 16, 1))
sketch4.addConstraint(Sketcher.Constraint("Tangent", 16, 2, 17, 1))
sketch4.addConstraint(Sketcher.Constraint("Tangent", 17, 2, 18, 2))
sketch4.addConstraint(Sketcher.Constraint("Tangent", 18, 1, 19, 2))
sketch4.addConstraint(Sketcher.Constraint("Tangent", 19, 1, 20, 1))
sketch4.addConstraint(Sketcher.Constraint("Tangent", 20, 2, 21, 2))
sketch4.addConstraint(Sketcher.Constraint("Tangent", 21, 1, 22, 2))
sketch4.addConstraint(Sketcher.Constraint("Tangent", 22, 1, 23, 1))
sketch4.addConstraint(Sketcher.Constraint("Tangent", 23, 2, 0, 1))
sketch4.addConstraint(Sketcher.Constraint("Tangent", 24, 2, 25, 2))
sketch4.addConstraint(Sketcher.Constraint("Tangent", 25, 1, 26, 1))
sketch4.addConstraint(Sketcher.Constraint("Tangent", 26, 2, 27, 1))
sketch4.addConstraint(Sketcher.Constraint("Tangent", 27, 2, 28, 1))
sketch4.addConstraint(Sketcher.Constraint("Tangent", 28, 2, 29, 1))
sketch4.addConstraint(Sketcher.Constraint("Tangent", 29, 2, 30, 1))
sketch4.addConstraint(Sketcher.Constraint("Tangent", 30, 2, 31, 2))
sketch4.addConstraint(Sketcher.Constraint("Tangent", 31, 1, 32, 1))
sketch4.addConstraint(Sketcher.Constraint("Coincident", 32, 2, 33, 1))
sketch4.addConstraint(Sketcher.Constraint("Coincident", 33, 2, 34, 1))
sketch4.addConstraint(Sketcher.Constraint("Coincident", 34, 2, 35, 1))
sketch4.addConstraint(Sketcher.Constraint("Coincident", 35, 2, 36, 1))
sketch4.addConstraint(Sketcher.Constraint("Tangent", 36, 2, 37, 2))
sketch4.addConstraint(Sketcher.Constraint("Tangent", 37, 1, 38, 1))
sketch4.addConstraint(Sketcher.Constraint("Tangent", 38, 2, 39, 1))
sketch4.addConstraint(Sketcher.Constraint("Tangent", 39, 2, 40, 1))
sketch4.addConstraint(Sketcher.Constraint("Tangent", 40, 2, 41, 1))
sketch4.addConstraint(Sketcher.Constraint("Tangent", 41, 2, 42, 1))
sketch4.addConstraint(Sketcher.Constraint("Tangent", 42, 2, 43, 2))
sketch4.addConstraint(Sketcher.Constraint("Tangent", 43, 1, 44, 1))
sketch4.addConstraint(Sketcher.Constraint("Coincident", 44, 2, 45, 1))
sketch4.addConstraint(Sketcher.Constraint("Coincident", 45, 2, 46, 1))
sketch4.addConstraint(Sketcher.Constraint("Coincident", 46, 2, 47, 1))
sketch4.addConstraint(Sketcher.Constraint("Coincident", 47, 2, 24, 1))
sketch4.addConstraint(Sketcher.Constraint("Horizontal", 0))
sketch4.addConstraint(Sketcher.Constraint("Vertical", 2))
sketch4.addConstraint(Sketcher.Constraint("Horizontal", 4))
sketch4.addConstraint(Sketcher.Constraint("Horizontal", 8))
sketch4.addConstraint(Sketcher.Constraint("Horizontal", 12))
sketch4.addConstraint(Sketcher.Constraint("Vertical", 14))
sketch4.addConstraint(Sketcher.Constraint("Horizontal", 16))
sketch4.addConstraint(Sketcher.Constraint("Horizontal", 20))
sketch4.addConstraint(Sketcher.Constraint("Horizontal", 24))
sketch4.addConstraint(Sketcher.Constraint("Horizontal", 28))
sketch4.addConstraint(Sketcher.Constraint("Horizontal", 32))
sketch4.addConstraint(Sketcher.Constraint("Vertical", 34))
sketch4.addConstraint(Sketcher.Constraint("Horizontal", 36))
sketch4.addConstraint(Sketcher.Constraint("Horizontal", 40))
sketch4.addConstraint(Sketcher.Constraint("Horizontal", 44))
sketch4.addConstraint(Sketcher.Constraint("Vertical", 46))
sketch4.addConstraint(Sketcher.Constraint("Coincident", 6, 3, -1, 1))
sketch4.addConstraint(Sketcher.Constraint("Coincident", 10, 3, -1, 1))
sketch4.addConstraint(Sketcher.Constraint("Coincident", 18, 3, -1, 1))
sketch4.addConstraint(Sketcher.Constraint("Coincident", 22, 3, -1, 1))
sketch4.addConstraint(Sketcher.Constraint("Coincident", 26, 3, -1, 1))
sketch4.addConstraint(Sketcher.Constraint("Coincident", 30, 3, -1, 1))
sketch4.addConstraint(Sketcher.Constraint("Coincident", 38, 3, -1, 1))
sketch4.addConstraint(Sketcher.Constraint("Coincident", 42, 3, -1, 1))
sketch4.addConstraint(Sketcher.Constraint("Coincident", 25, 3, 23, 3))
sketch4.addConstraint(Sketcher.Constraint("Coincident", 27, 3, 21, 3))
sketch4.addConstraint(Sketcher.Constraint("Coincident", 29, 3, 19, 3))
sketch4.addConstraint(Sketcher.Constraint("Coincident", 31, 3, 17, 3))
sketch4.addConstraint(Sketcher.Constraint("Coincident", 37, 3, 11, 3))
sketch4.addConstraint(Sketcher.Constraint("Coincident", 39, 3, 9, 3))
sketch4.addConstraint(Sketcher.Constraint("Coincident", 41, 3, 7, 3))
sketch4.addConstraint(Sketcher.Constraint("Coincident", 43, 3, 5, 3))
sketch4.addConstraint(Sketcher.Constraint("Equal", 5, 7))
sketch4.addConstraint(Sketcher.Constraint("Equal", 7, 9))
sketch4.addConstraint(Sketcher.Constraint("Equal", 6, 10))
sketch4.addConstraint(Sketcher.Constraint("Equal", 9, 11))
sketch4.addConstraint(Sketcher.Constraint("Equal", 11, 17))
sketch4.addConstraint(Sketcher.Constraint("Equal", 10, 18))
sketch4.addConstraint(Sketcher.Constraint("Equal", 17, 19))
sketch4.addConstraint(Sketcher.Constraint("Equal", 19, 21))
sketch4.addConstraint(Sketcher.Constraint("Equal", 18, 22))
sketch4.addConstraint(Sketcher.Constraint("Equal", 21, 23))
sketch4.addConstraint(Sketcher.Constraint("Equal", 31, 37))
sketch4.addConstraint(Sketcher.Constraint("Symmetric", 0, 2, 12, 2, -1, 1))
sketch4.addConstraint(Sketcher.Constraint("Symmetric", 1, 2, 13, 2, -1, 1))
sketch4.addConstraint(Sketcher.Constraint("Symmetric", 3, 2, 15, 2, -1, 1))
sketch4.addConstraint(Sketcher.Constraint("Symmetric", 33, 2, 45, 2, -1, 1))
sketch4.addConstraint(Sketcher.Constraint("Symmetric", 3, 2, 12, 2, -2))
sketch4.addConstraint(Sketcher.Constraint("Perpendicular", 1, 3))
sketch4.addConstraint(Sketcher.Constraint("Perpendicular", 13, 15))
sketch4.addConstraint(Sketcher.Constraint("Parallel", 15, 33))
sketch4.addConstraint(Sketcher.Constraint("Perpendicular", 33, 35))
sketch4.addConstraint(Sketcher.Constraint("Perpendicular", 35, 45))
sketch4.addConstraint(Sketcher.Constraint("Perpendicular", 45, 47))
sketch4.addConstraint(Sketcher.Constraint("Horizontal", 2, 2, 13, 2))
sketch4.addConstraint(Sketcher.Constraint("Horizontal", 34, 2, 45, 2))
sketch4.addConstraint(Sketcher.Constraint("Horizontal", 33, 2, 46, 2))
sketch4.addConstraint(Sketcher.Constraint("Vertical", 9, 3, 19, 3))
sketch4.addConstraint(Sketcher.Constraint("Radius", 6, Q("2 in")))
sketch4.addConstraint(Sketcher.Constraint("Radius", 5, Q("0.2 in")))
sketch4.addConstraint(Sketcher.Constraint("DistanceY", 2, 2, 2, 1, Q("1.475 in")))
sketch4.addConstraint(Sketcher.Constraint("DistanceY", 7, 3, -1, 1, Q("1.55 in")))
sketch4.addConstraint(Sketcher.Constraint("Radius", 25, 7.38))
sketch4.addConstraint(Sketcher.Constraint("DistanceY", -1, 1, 0, 2, Q("0.9375 in")))
sketch4.addConstraint(Sketcher.Constraint("DistanceX", -1, 1, 1, 2, Q("3.015625 in")))
sketch4.addConstraint(Sketcher.Constraint("DistanceX", 24, 2, 24, 1, 22.733254))
sketch4.addConstraint(Sketcher.Constraint("DistanceY", 34, 2, 34, 1, 35.559618))
sketch4.setExpression("Constraints[106]", "Params.sketch4_radius")
sketch4.setExpression("Constraints[107]", "Params.sketch4_radius2")
sketch4.setExpression("Constraints[108]", "Params.sketch4_height")
pad2 = body.newObject("PartDesign::Pad", "Pad001")
pad2.Profile = sketch4
pad2.setExpression("Length", "Params.pad2_length")
pad2.Reversed = True

doc.recompute()
